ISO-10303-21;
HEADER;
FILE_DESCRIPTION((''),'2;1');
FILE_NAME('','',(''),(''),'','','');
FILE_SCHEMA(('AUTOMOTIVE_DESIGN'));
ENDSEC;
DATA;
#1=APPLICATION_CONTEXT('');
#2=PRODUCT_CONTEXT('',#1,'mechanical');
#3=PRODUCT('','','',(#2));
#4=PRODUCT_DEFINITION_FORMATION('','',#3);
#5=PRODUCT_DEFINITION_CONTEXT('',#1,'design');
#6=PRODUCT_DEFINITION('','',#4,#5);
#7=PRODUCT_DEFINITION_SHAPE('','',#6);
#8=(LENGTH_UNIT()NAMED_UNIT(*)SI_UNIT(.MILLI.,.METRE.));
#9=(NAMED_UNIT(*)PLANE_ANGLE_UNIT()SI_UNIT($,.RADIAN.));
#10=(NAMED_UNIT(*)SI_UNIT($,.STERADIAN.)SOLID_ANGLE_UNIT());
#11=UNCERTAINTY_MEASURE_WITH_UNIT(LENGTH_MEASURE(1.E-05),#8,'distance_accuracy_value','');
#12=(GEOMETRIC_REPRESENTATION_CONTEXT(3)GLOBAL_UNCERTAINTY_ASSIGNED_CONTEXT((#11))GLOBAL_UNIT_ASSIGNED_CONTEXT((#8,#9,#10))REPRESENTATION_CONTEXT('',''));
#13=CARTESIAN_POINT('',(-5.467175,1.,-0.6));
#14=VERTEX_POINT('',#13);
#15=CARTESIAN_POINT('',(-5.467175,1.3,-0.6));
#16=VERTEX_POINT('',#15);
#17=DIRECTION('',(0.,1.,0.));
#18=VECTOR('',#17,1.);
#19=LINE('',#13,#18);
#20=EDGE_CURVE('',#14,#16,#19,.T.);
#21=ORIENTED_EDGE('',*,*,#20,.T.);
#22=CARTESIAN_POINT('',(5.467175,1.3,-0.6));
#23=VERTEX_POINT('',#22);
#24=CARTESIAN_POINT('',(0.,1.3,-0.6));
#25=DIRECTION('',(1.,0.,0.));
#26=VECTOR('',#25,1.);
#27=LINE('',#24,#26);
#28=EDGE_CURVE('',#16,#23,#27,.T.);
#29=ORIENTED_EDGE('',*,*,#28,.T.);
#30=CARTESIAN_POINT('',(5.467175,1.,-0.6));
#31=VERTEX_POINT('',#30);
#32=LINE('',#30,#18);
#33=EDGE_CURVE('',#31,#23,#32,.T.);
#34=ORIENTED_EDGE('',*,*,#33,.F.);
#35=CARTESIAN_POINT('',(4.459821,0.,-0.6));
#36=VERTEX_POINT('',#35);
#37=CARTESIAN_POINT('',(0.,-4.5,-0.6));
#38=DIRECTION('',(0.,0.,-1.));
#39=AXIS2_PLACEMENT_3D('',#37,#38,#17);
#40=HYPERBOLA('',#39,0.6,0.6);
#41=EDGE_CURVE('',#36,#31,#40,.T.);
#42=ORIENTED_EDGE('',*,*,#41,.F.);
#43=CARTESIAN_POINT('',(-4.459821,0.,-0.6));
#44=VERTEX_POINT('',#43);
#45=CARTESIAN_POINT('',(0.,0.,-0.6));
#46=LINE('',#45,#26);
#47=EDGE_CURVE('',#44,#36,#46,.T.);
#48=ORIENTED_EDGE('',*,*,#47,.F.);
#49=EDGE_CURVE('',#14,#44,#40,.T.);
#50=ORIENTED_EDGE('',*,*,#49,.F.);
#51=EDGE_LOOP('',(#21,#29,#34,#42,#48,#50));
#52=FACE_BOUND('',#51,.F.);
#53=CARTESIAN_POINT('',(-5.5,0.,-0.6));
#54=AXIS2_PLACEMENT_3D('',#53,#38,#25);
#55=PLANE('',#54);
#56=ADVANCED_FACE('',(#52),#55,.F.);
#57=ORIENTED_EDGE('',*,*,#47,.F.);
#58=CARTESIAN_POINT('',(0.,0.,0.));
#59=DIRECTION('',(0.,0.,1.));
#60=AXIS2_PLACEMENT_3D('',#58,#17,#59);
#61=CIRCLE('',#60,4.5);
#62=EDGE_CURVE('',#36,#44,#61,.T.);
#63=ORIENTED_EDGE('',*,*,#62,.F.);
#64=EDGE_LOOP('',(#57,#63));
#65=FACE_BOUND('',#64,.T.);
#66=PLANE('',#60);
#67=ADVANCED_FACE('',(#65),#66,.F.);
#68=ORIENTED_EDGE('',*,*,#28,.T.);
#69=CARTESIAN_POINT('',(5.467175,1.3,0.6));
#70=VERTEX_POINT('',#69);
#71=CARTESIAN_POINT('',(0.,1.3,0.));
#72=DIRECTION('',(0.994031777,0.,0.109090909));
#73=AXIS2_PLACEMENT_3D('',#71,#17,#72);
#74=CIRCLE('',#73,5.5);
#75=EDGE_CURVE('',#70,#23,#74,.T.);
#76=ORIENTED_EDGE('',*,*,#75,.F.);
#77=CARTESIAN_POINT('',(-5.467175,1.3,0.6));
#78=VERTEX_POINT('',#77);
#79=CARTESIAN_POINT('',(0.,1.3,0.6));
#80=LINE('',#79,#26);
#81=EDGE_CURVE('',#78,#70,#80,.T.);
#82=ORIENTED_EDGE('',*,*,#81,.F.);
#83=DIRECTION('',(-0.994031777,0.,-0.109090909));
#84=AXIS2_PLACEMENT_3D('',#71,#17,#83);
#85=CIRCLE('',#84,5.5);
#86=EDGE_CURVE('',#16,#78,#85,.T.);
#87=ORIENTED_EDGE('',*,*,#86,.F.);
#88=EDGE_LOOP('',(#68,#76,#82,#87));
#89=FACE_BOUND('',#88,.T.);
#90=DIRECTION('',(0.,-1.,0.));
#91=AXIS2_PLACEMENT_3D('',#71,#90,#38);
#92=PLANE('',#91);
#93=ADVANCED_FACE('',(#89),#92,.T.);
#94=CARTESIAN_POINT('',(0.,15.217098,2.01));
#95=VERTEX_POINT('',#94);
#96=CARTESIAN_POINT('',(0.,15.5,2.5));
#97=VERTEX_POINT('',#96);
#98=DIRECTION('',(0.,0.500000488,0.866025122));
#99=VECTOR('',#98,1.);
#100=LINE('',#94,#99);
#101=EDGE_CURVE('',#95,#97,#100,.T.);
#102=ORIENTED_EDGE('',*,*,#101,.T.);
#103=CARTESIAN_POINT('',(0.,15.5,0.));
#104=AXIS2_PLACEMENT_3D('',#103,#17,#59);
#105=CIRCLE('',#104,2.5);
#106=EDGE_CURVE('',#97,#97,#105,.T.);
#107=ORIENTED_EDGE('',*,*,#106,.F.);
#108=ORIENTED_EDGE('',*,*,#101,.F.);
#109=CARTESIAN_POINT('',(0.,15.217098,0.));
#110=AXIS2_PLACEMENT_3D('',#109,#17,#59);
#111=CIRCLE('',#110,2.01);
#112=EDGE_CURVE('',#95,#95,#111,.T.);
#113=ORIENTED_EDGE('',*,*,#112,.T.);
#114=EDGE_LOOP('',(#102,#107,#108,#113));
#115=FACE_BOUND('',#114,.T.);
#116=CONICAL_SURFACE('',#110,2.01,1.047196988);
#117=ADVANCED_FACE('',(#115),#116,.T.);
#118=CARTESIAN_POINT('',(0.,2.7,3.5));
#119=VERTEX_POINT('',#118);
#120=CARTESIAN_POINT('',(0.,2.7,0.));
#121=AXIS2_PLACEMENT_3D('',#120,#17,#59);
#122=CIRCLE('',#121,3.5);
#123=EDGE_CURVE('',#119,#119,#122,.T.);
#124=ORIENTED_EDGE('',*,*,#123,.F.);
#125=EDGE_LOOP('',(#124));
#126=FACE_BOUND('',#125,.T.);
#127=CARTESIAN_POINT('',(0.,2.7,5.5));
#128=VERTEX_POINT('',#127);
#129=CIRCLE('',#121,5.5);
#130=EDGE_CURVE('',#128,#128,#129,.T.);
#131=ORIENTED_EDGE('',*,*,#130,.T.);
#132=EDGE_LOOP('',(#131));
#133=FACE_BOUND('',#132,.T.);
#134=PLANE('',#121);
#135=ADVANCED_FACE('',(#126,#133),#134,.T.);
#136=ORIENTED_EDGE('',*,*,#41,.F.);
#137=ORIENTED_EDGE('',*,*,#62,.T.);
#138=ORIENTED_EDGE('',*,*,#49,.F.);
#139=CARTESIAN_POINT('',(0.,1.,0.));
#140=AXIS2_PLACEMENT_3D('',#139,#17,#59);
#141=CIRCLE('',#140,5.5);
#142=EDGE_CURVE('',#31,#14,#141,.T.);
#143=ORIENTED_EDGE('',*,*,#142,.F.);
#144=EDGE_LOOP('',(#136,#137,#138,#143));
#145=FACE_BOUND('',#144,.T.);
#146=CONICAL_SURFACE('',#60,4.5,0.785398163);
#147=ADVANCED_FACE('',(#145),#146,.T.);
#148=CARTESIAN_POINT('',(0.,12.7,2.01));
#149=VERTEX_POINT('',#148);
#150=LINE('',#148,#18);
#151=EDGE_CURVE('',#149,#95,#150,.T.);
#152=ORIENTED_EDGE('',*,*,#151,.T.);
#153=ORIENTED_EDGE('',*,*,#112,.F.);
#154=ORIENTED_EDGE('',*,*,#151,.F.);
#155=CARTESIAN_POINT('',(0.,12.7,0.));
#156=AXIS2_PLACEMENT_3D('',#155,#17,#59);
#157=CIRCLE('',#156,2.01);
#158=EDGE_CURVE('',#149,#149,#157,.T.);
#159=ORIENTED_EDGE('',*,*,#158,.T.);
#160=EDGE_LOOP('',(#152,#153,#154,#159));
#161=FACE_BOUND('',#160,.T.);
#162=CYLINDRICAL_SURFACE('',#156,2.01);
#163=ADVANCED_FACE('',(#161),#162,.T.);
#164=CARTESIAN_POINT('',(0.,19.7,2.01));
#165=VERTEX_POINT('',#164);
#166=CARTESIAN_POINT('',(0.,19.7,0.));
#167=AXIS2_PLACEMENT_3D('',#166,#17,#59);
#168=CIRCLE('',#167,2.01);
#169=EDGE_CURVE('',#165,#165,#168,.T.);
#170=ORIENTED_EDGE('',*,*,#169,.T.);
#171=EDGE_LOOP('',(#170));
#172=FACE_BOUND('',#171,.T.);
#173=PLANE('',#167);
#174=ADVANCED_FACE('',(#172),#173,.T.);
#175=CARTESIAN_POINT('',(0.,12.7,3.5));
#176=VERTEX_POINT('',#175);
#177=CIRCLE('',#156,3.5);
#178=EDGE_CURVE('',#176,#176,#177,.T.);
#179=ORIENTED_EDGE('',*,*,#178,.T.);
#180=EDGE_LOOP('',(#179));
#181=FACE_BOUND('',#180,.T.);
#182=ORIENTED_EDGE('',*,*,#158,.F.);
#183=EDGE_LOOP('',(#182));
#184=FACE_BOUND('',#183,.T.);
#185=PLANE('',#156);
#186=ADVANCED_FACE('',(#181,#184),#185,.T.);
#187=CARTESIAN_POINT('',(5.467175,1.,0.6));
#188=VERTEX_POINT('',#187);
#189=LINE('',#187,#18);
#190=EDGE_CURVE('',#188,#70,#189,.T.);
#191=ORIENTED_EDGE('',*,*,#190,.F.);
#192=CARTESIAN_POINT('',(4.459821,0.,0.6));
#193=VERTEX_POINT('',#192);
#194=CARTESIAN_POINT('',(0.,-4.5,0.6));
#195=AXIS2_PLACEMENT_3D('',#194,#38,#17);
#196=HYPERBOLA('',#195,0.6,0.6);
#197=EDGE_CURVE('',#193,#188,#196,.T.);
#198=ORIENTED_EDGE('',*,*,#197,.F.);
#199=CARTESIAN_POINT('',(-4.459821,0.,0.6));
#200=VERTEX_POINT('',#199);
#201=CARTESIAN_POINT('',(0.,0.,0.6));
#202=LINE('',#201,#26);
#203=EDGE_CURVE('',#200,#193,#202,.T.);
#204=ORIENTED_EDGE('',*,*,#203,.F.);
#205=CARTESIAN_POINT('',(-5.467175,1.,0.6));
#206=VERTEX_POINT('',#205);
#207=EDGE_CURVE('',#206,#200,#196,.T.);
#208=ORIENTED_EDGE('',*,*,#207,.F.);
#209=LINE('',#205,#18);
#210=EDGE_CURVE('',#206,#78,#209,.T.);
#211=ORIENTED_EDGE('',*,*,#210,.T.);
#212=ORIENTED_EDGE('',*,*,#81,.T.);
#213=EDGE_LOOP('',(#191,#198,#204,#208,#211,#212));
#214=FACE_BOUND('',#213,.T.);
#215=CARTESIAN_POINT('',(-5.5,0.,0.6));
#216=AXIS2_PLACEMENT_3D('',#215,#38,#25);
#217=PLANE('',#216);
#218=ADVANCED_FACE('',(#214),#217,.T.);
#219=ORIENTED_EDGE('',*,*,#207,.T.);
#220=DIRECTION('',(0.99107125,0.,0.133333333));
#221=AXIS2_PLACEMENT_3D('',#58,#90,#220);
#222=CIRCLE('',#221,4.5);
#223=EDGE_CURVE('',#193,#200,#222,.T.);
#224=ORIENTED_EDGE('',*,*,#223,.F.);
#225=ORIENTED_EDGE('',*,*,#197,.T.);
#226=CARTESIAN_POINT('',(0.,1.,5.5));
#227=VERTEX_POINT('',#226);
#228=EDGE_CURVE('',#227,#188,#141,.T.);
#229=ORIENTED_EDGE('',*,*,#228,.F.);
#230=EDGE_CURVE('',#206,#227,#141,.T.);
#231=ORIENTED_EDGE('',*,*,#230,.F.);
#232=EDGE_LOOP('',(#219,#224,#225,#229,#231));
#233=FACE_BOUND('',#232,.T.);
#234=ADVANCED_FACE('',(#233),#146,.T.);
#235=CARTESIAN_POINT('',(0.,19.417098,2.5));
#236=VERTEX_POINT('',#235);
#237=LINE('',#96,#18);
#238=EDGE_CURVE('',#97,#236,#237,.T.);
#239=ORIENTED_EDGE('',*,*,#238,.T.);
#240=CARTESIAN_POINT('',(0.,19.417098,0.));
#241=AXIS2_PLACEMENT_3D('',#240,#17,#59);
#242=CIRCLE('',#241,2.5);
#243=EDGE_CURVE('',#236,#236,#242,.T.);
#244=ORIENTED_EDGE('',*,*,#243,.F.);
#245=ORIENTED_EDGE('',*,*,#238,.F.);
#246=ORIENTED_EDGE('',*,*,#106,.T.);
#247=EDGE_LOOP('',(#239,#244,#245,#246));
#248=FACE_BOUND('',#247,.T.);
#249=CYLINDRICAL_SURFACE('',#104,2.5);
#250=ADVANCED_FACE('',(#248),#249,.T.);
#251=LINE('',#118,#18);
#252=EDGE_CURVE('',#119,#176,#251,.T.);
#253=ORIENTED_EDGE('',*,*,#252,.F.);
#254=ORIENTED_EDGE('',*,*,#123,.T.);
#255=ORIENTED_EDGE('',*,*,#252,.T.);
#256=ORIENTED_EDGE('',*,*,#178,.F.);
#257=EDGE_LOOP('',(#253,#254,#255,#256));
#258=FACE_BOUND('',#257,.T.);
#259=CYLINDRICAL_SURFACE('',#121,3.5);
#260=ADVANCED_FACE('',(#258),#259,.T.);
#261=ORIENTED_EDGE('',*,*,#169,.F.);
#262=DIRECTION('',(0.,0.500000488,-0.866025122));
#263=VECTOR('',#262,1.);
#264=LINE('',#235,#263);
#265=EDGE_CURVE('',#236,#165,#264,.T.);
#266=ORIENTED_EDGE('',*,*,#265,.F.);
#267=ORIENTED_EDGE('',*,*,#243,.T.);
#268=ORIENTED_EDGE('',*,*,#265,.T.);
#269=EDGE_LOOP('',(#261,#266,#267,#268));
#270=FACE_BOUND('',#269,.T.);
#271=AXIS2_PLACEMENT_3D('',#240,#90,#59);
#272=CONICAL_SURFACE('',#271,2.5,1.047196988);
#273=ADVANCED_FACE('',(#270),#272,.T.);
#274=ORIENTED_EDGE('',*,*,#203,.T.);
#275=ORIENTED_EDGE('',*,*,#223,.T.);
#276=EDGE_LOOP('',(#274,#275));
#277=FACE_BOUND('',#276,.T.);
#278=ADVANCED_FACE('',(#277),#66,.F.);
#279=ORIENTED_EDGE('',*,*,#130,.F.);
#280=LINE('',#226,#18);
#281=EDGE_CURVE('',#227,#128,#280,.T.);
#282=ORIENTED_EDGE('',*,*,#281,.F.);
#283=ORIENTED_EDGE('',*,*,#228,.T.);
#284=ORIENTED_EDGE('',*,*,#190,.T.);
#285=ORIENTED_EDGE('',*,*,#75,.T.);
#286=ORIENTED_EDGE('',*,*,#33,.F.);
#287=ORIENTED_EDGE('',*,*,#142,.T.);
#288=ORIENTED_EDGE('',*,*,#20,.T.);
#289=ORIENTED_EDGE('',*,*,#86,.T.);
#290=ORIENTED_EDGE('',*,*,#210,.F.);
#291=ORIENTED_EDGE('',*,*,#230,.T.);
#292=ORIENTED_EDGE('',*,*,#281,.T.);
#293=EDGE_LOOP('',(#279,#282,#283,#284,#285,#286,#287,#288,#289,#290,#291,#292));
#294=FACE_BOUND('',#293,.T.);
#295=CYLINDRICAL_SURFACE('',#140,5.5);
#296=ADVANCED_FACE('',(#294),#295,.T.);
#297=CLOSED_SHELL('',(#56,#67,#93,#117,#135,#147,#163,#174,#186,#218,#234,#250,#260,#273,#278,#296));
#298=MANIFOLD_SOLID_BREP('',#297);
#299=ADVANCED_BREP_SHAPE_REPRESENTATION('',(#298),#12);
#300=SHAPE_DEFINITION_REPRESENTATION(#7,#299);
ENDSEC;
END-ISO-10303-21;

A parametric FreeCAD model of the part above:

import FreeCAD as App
import Part
import Sketcher
from FreeCAD import Vector
Q = App.Units.Quantity


def add_polygon(sketch, points):
    """Adds a closed chain of lines whose ends are joined by coincident constraints."""
    first, n = sketch.GeometryCount, len(points)
    for a, b in zip(points, points[1:] + points[:1]):
        sketch.addGeometry(Part.LineSegment(App.Vector(*a, 0), App.Vector(*b, 0)), False)
    for i in range(n):
        sketch.addConstraint(Sketcher.Constraint("Coincident", first + i, 2, first + (i + 1) % n, 1))

doc = App.newDocument("Part")
body = doc.addObject("PartDesign::Body", "Body")

# Sketch on YZ plane
sketch1 = body.newObject("Sketcher::SketchObject", "Sketch")
sketch1.AttachmentSupport = (doc.getObject("YZ_Plane"), [""])
sketch1.MapMode = "FlatFace"
add_polygon(sketch1, [(0, 4.5), (0, 0), (19.7, 0), (19.7, 2), (19.4, 2.5), (15.5, 2.5), (15.2, 2), (12.7, 2), (12.7, 3.5), (2.7, 3.5), (2.7, 5.5), (1, 5.5)])  # lines 0-11
sketch1.addConstraint(Sketcher.Constraint("Vertical", 0))
sketch1.addConstraint(Sketcher.Constraint("Horizontal", 1))
sketch1.addConstraint(Sketcher.Constraint("Vertical", 2))
sketch1.addConstraint(Sketcher.Constraint("Horizontal", 4))
sketch1.addConstraint(Sketcher.Constraint("Horizontal", 6))
sketch1.addConstraint(Sketcher.Constraint("Vertical", 7))
sketch1.addConstraint(Sketcher.Constraint("Horizontal", 8))
sketch1.addConstraint(Sketcher.Constraint("Vertical", 9))
sketch1.addConstraint(Sketcher.Constraint("Horizontal", 10))
sketch1.addConstraint(Sketcher.Constraint("Coincident", 0, 2, -1, 1))
sketch1.addConstraint(Sketcher.Constraint("Horizontal", 2, 2, 5, 2))
sketch1.addConstraint(Sketcher.Constraint("Equal", 3, 5))
sketch1.addConstraint(Sketcher.Constraint("DistanceX", 8, 2, 8, 1, 10.0))
sketch1.addConstraint(Sketcher.Constraint("DistanceY", 9, 1, 9, 2, 2.0))
sketch1.addConstraint(Sketcher.Constraint("Angle", 11, Q("-135 deg")))
sketch1.addConstraint(Sketcher.Constraint("DistanceX", 1, 1, 1, 2, 19.7))
sketch1.addConstraint(Sketcher.Constraint("DistanceX", 10, 2, 10, 1, 1.7))
sketch1.addConstraint(Sketcher.Constraint("DistanceY", 0, 2, 0, 1, 4.5))
sketch1.addConstraint(Sketcher.Constraint("DistanceX", -1, 1, 10, 2, 1.0))
sketch1.addConstraint(Sketcher.Constraint("DistanceY", 4, 2, 7, 2, 1.0))
sketch1.addConstraint(Sketcher.Constraint("DistanceY", 2, 1, 2, 2, 2.01))
sketch1.addConstraint(Sketcher.Constraint("DistanceX", -1, 1, 4, 2, 15.5))
sketch1.addConstraint(Sketcher.Constraint("DistanceX", 6, 2, 6, 1, 2.517098))
revolution = body.newObject("PartDesign::Revolution", "Revolution")
revolution.Profile = sketch1
revolution.ReferenceAxis = (sketch1, ["H_Axis"])
revolution.Angle = 360

# Sketch on XZ plane
sketch2 = body.newObject("Sketcher::SketchObject", "Sketch001")
sketch2.AttachmentSupport = (doc.getObject("XZ_Plane"), [""])
sketch2.MapMode = "FlatFace"
add_polygon(sketch2, [(5.5, 0.6), (-5.5, 0.6), (-5.5, -0.6), (5.5, -0.6)])  # lines 0-3
sketch2.addConstraint(Sketcher.Constraint("Horizontal", 0))
sketch2.addConstraint(Sketcher.Constraint("Vertical", 1))
sketch2.addConstraint(Sketcher.Constraint("Horizontal", 2))
sketch2.addConstraint(Sketcher.Constraint("Vertical", 3))
sketch2.addConstraint(Sketcher.Constraint("Symmetric", 0, 2, 2, 2, -1, 1))
sketch2.addConstraint(Sketcher.Constraint("DistanceX", 0, 2, 0, 1, 11.0))
sketch2.addConstraint(Sketcher.Constraint("DistanceY", 1, 2, 1, 1, 1.2))
pocket1 = body.newObject("PartDesign::Pocket", "Pocket")
pocket1.Profile = sketch2
pocket1.Length = 1.3

doc.recompute()
